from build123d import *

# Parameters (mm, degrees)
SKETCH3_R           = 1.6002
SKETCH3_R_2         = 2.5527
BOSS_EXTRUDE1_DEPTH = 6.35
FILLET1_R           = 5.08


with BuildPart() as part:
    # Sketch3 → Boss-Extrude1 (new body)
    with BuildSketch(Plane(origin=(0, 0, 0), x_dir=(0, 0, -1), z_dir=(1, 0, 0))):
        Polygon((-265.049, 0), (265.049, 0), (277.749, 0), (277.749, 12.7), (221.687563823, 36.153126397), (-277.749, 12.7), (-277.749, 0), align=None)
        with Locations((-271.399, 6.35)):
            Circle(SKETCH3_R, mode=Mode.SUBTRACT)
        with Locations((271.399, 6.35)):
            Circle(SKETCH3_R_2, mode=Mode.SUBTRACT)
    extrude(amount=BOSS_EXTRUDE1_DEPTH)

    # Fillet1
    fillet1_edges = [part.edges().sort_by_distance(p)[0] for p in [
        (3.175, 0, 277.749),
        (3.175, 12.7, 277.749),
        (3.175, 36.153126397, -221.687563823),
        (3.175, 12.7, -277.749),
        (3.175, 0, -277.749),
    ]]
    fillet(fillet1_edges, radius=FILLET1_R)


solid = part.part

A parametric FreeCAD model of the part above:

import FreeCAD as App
import Part
import Sketcher

V = App.Vector
Q = App.Units.Quantity


def edges_at(feature, points):
    """Names of the edges that pass closest to the given points."""
    edges = feature.Shape.Edges
    near = lambda p: min(range(len(edges)), key=lambda i: edges[i].distToShape(Part.Vertex(*p))[0])
    return sorted({f"Edge{near(p) + 1}" for p in points})


def add_polygon(sketch, points):
    """Adds a closed chain of lines whose ends are joined by coincident constraints."""
    first, n = sketch.GeometryCount, len(points)
    for a, b in zip(points, points[1:] + points[:1]):
        sketch.addGeometry(Part.LineSegment(App.Vector(*a, 0), App.Vector(*b, 0)), False)
    for i in range(n):
        sketch.addConstraint(Sketcher.Constraint("Coincident", first + i, 2, first + (i + 1) % n, 1))

doc = App.newDocument("Part")
body = doc.addObject("PartDesign::Body", "Body")

sketch1 = body.newObject("Sketcher::SketchObject", "Sketch")
sketch1.AttachmentSupport = (doc.getObject("YZ_Plane"), [""])
sketch1.MapMode = "FlatFace"
add_polygon(sketch1, [(0, -277.749), (12.7, -277.749), (36.153126, -221.687564), (12.7, 277.749), (0, 277.749)])
sketch1.addGeometry(Part.Circle(V(6.35, 271.399, 0), V(0, 0, 1), 1.6002), False)
sketch1.addGeometry(Part.Circle(V(6.35, -271.399, 0), V(0, 0, 1), 2.5527), False)
sketch1.addConstraint(Sketcher.Constraint("Horizontal", 0))
sketch1.addConstraint(Sketcher.Constraint("Horizontal", 3))
sketch1.addConstraint(Sketcher.Constraint("Vertical", 4))
sketch1.addConstraint(Sketcher.Constraint("Symmetric", 3, 2, 4, 2, -1, 1))
sketch1.addConstraint(Sketcher.Constraint("Symmetric", 5, 3, 6, 3, -1))
sketch1.addConstraint(Sketcher.Constraint("Vertical", 0, 2, 2, 2))
sketch1.addConstraint(Sketcher.Constraint("Diameter", 5, Q("0.126 in")))
sketch1.addConstraint(Sketcher.Constraint("Diameter", 6, Q("0.201 in")))
sketch1.addConstraint(Sketcher.Constraint("DistanceX", 0, 1, 0, 2, Q("0.5 in")))
sketch1.addConstraint(Sketcher.Constraint("DistanceY", 4, 2, 4, 1, Q("21.87 in")))
sketch1.addConstraint(Sketcher.Constraint("DistanceX", -1, 1, 5, 3, Q("0.25 in")))
sketch1.addConstraint(Sketcher.Constraint("DistanceY", 6, 3, 5, 3, Q("21.37 in")))
sketch1.addConstraint(Sketcher.Constraint("Distance", 2, 499.98693))
sketch1.addConstraint(Sketcher.Constraint("Distance", 1, 60.769513))
pad1 = body.newObject("PartDesign::Pad", "Pad")
pad1.Profile = sketch1
pad1.Length = Q("0.25 in")
doc.recompute()

fillet = body.newObject("PartDesign::Fillet", "Fillet")
fillet.Base = (pad1, edges_at(pad1, [
    (3.175, 0, 277.749),
    (3.175, 12.7, 277.749),
    (3.175, 36.153, -221.688),
    (3.175, 12.7, -277.749),
    (3.175, 0, -277.749),
]))
fillet.Radius = Q("0.2 in")

doc.recompute()
